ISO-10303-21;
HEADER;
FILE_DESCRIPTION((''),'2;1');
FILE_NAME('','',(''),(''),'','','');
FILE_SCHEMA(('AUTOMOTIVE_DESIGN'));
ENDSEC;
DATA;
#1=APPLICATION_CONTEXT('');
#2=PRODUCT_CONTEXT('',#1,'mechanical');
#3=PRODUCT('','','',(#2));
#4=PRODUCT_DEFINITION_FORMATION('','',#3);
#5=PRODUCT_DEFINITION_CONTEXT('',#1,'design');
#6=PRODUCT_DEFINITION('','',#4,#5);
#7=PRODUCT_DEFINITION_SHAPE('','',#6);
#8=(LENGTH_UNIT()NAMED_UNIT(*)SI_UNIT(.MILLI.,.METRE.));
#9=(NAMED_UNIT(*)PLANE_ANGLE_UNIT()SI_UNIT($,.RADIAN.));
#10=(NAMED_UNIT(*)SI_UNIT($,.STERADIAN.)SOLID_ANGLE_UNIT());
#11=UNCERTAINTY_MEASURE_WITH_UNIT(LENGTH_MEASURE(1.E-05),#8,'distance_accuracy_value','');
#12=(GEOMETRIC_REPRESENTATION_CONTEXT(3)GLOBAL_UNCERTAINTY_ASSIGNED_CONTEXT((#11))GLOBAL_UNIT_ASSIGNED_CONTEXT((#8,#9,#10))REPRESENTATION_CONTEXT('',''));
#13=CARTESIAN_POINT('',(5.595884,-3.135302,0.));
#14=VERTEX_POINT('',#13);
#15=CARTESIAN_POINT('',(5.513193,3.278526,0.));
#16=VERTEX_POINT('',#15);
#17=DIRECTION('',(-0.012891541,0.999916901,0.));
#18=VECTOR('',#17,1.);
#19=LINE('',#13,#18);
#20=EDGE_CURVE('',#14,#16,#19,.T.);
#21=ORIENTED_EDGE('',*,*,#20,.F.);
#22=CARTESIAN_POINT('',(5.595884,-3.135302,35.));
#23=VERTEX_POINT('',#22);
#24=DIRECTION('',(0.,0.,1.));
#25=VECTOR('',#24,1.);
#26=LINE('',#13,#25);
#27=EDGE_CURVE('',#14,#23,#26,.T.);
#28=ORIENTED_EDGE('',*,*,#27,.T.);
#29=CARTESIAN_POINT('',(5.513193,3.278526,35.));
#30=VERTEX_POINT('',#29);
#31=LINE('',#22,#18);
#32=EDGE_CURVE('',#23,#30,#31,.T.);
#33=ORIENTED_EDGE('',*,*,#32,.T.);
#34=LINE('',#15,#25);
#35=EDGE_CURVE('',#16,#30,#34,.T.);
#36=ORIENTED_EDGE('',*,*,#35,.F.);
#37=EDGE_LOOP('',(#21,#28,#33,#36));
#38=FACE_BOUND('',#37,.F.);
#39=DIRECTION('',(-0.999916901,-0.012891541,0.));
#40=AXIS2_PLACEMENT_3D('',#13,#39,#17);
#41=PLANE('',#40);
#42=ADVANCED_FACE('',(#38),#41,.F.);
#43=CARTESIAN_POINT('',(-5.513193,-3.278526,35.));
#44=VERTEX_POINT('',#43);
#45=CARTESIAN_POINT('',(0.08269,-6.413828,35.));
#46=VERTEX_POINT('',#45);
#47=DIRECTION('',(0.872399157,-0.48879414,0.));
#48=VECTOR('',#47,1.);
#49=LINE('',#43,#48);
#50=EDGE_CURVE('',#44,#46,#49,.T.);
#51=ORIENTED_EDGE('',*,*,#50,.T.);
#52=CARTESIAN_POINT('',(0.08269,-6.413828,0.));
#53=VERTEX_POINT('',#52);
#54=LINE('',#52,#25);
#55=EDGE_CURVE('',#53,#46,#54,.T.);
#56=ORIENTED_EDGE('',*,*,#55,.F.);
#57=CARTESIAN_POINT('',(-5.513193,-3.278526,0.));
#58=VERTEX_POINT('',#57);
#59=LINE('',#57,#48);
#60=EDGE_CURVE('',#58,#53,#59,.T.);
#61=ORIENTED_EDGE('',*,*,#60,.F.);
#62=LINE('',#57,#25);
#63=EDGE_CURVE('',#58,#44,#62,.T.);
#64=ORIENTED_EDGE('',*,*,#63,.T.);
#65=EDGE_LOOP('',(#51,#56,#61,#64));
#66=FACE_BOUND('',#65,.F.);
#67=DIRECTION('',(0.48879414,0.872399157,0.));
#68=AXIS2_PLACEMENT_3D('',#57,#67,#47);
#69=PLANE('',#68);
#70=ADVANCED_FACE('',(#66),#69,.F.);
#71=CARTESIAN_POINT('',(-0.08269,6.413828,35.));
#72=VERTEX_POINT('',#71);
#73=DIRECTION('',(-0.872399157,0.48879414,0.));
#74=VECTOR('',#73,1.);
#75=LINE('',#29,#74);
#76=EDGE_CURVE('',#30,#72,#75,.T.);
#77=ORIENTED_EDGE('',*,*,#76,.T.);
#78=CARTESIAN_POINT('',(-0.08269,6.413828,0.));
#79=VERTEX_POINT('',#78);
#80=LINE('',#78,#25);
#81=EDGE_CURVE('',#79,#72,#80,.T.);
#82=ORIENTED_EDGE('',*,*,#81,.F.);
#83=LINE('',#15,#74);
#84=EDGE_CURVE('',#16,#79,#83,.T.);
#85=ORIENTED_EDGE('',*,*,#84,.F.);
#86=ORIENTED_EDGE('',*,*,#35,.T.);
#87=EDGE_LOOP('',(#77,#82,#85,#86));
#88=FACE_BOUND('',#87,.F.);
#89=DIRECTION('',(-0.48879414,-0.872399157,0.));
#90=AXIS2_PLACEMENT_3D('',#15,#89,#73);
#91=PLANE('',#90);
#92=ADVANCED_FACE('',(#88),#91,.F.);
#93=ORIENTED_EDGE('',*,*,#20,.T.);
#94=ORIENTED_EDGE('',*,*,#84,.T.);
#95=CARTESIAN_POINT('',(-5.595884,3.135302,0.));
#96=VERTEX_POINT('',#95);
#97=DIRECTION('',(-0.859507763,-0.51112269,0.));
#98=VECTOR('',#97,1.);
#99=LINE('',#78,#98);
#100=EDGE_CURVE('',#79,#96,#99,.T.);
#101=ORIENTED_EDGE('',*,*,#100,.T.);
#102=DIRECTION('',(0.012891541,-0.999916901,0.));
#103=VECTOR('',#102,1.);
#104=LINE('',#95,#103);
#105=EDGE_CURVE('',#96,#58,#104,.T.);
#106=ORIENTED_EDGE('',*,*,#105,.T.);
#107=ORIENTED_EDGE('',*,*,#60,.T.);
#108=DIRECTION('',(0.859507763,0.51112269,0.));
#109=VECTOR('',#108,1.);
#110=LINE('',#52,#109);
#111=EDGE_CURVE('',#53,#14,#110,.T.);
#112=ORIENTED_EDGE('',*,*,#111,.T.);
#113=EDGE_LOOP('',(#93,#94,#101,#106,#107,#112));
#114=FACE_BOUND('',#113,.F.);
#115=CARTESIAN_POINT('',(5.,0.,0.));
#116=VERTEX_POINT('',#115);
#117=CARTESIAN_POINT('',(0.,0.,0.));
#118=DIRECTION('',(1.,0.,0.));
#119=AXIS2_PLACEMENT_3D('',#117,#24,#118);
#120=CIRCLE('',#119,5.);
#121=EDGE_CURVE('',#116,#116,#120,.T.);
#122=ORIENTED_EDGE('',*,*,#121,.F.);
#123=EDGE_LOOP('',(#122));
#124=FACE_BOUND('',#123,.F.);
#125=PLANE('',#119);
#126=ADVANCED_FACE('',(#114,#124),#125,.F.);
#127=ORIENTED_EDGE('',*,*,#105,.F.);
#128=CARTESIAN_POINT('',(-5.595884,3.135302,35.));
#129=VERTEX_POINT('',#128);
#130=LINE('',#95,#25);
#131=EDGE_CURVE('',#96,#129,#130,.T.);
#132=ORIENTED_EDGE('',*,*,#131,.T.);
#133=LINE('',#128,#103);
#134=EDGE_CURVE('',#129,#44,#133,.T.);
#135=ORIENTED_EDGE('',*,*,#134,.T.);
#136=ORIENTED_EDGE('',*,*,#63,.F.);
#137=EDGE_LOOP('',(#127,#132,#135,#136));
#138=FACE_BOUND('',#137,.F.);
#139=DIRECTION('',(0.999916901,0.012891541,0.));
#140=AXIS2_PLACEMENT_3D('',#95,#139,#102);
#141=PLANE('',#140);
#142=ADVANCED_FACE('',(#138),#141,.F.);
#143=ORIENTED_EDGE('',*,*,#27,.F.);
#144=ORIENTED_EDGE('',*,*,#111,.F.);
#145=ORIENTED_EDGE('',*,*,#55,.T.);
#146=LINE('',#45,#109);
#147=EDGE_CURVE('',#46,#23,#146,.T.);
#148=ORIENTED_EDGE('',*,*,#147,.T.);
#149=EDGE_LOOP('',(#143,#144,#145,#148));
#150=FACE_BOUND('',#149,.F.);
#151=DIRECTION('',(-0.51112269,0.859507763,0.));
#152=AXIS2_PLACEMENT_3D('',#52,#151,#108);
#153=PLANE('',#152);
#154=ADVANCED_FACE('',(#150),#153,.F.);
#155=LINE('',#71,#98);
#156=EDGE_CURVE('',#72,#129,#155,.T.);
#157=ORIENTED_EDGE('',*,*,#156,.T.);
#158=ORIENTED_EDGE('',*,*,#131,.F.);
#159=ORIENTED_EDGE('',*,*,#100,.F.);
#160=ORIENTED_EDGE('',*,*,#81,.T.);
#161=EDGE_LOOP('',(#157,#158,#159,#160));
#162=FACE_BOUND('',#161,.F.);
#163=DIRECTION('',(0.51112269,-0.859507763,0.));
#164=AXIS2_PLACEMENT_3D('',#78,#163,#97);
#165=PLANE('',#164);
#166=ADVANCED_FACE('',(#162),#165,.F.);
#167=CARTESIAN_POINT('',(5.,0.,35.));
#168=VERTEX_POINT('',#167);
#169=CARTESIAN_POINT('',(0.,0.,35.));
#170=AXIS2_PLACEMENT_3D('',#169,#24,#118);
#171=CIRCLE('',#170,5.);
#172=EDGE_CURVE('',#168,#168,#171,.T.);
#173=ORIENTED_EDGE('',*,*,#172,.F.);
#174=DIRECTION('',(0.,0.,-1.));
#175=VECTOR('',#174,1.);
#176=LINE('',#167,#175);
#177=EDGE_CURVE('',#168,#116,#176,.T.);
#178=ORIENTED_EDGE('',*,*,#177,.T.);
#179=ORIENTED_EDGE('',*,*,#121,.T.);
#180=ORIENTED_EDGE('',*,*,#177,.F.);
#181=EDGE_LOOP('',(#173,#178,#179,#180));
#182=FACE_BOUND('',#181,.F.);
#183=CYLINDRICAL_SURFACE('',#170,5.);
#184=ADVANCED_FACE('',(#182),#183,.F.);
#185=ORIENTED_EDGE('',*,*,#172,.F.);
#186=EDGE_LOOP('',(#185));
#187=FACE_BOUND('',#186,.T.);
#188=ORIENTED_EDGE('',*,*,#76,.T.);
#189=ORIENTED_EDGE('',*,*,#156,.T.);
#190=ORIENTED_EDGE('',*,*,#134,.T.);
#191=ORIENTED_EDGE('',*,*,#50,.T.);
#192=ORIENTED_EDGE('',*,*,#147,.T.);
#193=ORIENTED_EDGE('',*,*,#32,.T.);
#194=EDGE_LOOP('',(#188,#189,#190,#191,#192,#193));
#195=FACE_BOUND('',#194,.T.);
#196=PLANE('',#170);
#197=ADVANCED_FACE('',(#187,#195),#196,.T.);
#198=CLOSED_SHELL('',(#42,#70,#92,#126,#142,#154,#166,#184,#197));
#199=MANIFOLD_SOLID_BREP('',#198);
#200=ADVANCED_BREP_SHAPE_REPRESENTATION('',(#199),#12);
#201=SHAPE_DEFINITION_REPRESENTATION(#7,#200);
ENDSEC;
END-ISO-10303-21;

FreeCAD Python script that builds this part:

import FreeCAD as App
import Part
import Sketcher
Q = App.Units.Quantity


def add_polygon(sketch, points):
    """Adds a closed chain of lines whose ends are joined by coincident constraints."""
    first, n = sketch.GeometryCount, len(points)
    for a, b in zip(points, points[1:] + points[:1]):
        sketch.addGeometry(Part.LineSegment(App.Vector(*a, 0), App.Vector(*b, 0)), False)
    for i in range(n):
        sketch.addConstraint(Sketcher.Constraint("Coincident", first + i, 2, first + (i + 1) % n, 1))

doc = App.newDocument("Part")
body = doc.addObject("PartDesign::Body", "Body")

sketch1 = doc.addObject("Sketcher::SketchObject", "Sketch")
body.addObject(sketch1)
sketch1.AttachmentSupport = (doc.XY_Plane, [""])
sketch1.MapMode = "FlatFace"
add_polygon(sketch1, [(6, 3), (0, 6), (-6, 3), (-6, -3), (0, -6), (6, -3)])
sketch1.addConstraint([
    Sketcher.Constraint("Symmetric", 0, 2, 3, 2, -1, 1),
    Sketcher.Constraint("Symmetric", 1, 2, 4, 2, -1, 1),
    Sketcher.Constraint("Symmetric", 2, 2, 5, 2, -1, 1),
    Sketcher.Constraint("Equal", 0, 1),
    Sketcher.Constraint("Equal", 1, 2),
    Sketcher.Constraint("DistanceY", -1, 1, 1, 2, Q("3.135302 mm")),
    Sketcher.Constraint("DistanceY", 3, 2, 2, 2, Q("3.135302 mm")),
    Sketcher.Constraint("Distance", 0, Q("6.414361 mm")),
    Sketcher.Constraint("DistanceX", 0, 2, -1, 1, Q("0.08269 mm")),
])
pad1 = doc.addObject("PartDesign::Pad", "Pad")
body.addObject(pad1)
pad1.Profile = sketch1
pad1.Length = 35

sketch2 = doc.addObject("Sketcher::SketchObject", "Sketch001")
body.addObject(sketch2)
sketch2.AttachmentSupport = (doc.XY_Plane, [""])
sketch2.MapMode = "FlatFace"
sketch2.AttachmentOffset = App.Placement(App.Vector(0, 0, 35), App.Rotation())
sketch2.addGeometry(Part.Circle(App.Vector(0, 0, 0), App.Vector(0, 0, 1), 5), False)
sketch2.addConstraint([
    Sketcher.Constraint("Coincident", 0, 3, -1, 1),
    Sketcher.Constraint("Diameter", 0, Q("10 mm")),
])
pocket1 = doc.addObject("PartDesign::Pocket", "Pocket")
body.addObject(pocket1)
pocket1.Profile = sketch2
pocket1.Length = 52.1

doc.recompute()
